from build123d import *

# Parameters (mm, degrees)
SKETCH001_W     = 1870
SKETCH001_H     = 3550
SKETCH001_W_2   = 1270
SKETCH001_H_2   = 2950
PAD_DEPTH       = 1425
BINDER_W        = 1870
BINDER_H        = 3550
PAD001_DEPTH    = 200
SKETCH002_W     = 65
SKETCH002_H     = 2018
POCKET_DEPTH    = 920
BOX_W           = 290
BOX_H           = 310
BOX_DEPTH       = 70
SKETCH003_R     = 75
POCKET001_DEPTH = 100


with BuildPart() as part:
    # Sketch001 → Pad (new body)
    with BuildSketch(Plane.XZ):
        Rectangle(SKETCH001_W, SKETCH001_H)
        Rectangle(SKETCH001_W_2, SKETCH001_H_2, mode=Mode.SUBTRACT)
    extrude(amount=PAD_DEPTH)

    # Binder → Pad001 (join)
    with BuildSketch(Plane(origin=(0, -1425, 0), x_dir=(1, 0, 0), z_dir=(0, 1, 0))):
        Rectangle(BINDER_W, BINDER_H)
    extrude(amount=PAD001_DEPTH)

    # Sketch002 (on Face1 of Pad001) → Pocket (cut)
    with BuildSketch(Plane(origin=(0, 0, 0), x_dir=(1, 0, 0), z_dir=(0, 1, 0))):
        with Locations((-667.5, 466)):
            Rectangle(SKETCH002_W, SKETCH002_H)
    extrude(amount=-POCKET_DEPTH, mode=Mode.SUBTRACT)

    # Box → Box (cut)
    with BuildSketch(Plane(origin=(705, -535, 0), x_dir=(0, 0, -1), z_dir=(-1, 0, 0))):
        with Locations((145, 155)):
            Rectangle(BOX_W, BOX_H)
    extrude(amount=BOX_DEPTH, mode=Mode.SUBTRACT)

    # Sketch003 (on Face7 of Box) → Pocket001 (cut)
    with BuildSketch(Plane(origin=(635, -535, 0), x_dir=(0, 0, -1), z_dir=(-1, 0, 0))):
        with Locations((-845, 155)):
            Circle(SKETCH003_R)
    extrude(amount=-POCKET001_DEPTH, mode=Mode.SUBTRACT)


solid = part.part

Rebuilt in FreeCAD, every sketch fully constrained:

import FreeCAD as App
import Part
import Sketcher
from FreeCAD import Vector


def add_polygon(sketch, points):
    """Adds a closed chain of lines whose ends are joined by coincident constraints."""
    first, n = sketch.GeometryCount, len(points)
    for a, b in zip(points, points[1:] + points[:1]):
        sketch.addGeometry(Part.LineSegment(App.Vector(*a, 0), App.Vector(*b, 0)), False)
    for i in range(n):
        sketch.addConstraint(Sketcher.Constraint("Coincident", first + i, 2, first + (i + 1) % n, 1))

doc = App.newDocument("Part")
body = doc.addObject("PartDesign::Body", "Body")

# Sketch on XZ plane
sketch1 = body.newObject("Sketcher::SketchObject", "Sketch")
sketch1.AttachmentSupport = (doc.getObject("XZ_Plane"), [""])
sketch1.MapMode = "FlatFace"
add_polygon(sketch1, [(-935, 1775), (-935, -1775), (935, -1775), (935, 1775)])  # lines 0-3
add_polygon(sketch1, [(635, -1475), (-635, -1475), (-635, 1475), (635, 1475)])  # lines 4-7
sketch1.addConstraint(Sketcher.Constraint("Vertical", 0))
sketch1.addConstraint(Sketcher.Constraint("Horizontal", 1))
sketch1.addConstraint(Sketcher.Constraint("Vertical", 2))
sketch1.addConstraint(Sketcher.Constraint("Horizontal", 3))
sketch1.addConstraint(Sketcher.Constraint("Horizontal", 4))
sketch1.addConstraint(Sketcher.Constraint("Vertical", 5))
sketch1.addConstraint(Sketcher.Constraint("Horizontal", 6))
sketch1.addConstraint(Sketcher.Constraint("Vertical", 7))
sketch1.addConstraint(Sketcher.Constraint("Symmetric", 0, 2, 2, 2, -1, 1))
sketch1.addConstraint(Sketcher.Constraint("Symmetric", 4, 2, 6, 2, -1, 1))
sketch1.addConstraint(Sketcher.Constraint("DistanceX", 1, 1, 1, 2, 1870.0))
sketch1.addConstraint(Sketcher.Constraint("DistanceX", 4, 2, 4, 1, 1270.0))
sketch1.addConstraint(Sketcher.Constraint("DistanceY", 0, 2, 0, 1, 3550.0))
sketch1.addConstraint(Sketcher.Constraint("DistanceY", 5, 1, 5, 2, 2950.0))
pad1 = body.newObject("PartDesign::Pad", "Pad")
pad1.Profile = sketch1
pad1.Length = 1425

# Sketch on XZ plane
sketch2 = body.newObject("Sketcher::SketchObject", "Sketch001")
sketch2.AttachmentSupport = (doc.getObject("XZ_Plane"), [""])
sketch2.MapMode = "FlatFace"
sketch2.AttachmentOffset = App.Placement(Vector(0, 0, 1425), App.Rotation())
add_polygon(sketch2, [(-935, -1775), (-935, 1775), (935, 1775), (935, -1775)])  # lines 0-3
sketch2.addConstraint(Sketcher.Constraint("Vertical", 0))
sketch2.addConstraint(Sketcher.Constraint("Horizontal", 1))
sketch2.addConstraint(Sketcher.Constraint("Vertical", 2))
sketch2.addConstraint(Sketcher.Constraint("Horizontal", 3))
sketch2.addConstraint(Sketcher.Constraint("Symmetric", 0, 2, 2, 2, -1, 1))
sketch2.addConstraint(Sketcher.Constraint("DistanceX", 1, 1, 1, 2, 1870.0))
sketch2.addConstraint(Sketcher.Constraint("DistanceY", 0, 1, 0, 2, 3550.0))
pad2 = body.newObject("PartDesign::Pad", "Pad001")
pad2.Profile = sketch2
pad2.Length = 200
pad2.Reversed = True

# Sketch on XZ plane
sketch3 = body.newObject("Sketcher::SketchObject", "Sketch002")
sketch3.AttachmentSupport = (doc.getObject("XZ_Plane"), [""])
sketch3.MapMode = "FlatFace"
add_polygon(sketch3, [(-700, -1475), (-700, 543), (-635, 543), (-635, -1475)])  # lines 0-3
sketch3.addConstraint(Sketcher.Constraint("Vertical", 0))
sketch3.addConstraint(Sketcher.Constraint("Horizontal", 1))
sketch3.addConstraint(Sketcher.Constraint("Vertical", 2))
sketch3.addConstraint(Sketcher.Constraint("Horizontal", 3))
sketch3.addConstraint(Sketcher.Constraint("DistanceX", 1, 1, 1, 2, 65.0))
sketch3.addConstraint(Sketcher.Constraint("DistanceY", 0, 1, 0, 2, 2018.0))
sketch3.addConstraint(Sketcher.Constraint("DistanceX", 0, 2, -1, 1, 700.0))
sketch3.addConstraint(Sketcher.Constraint("DistanceY", -1, 1, 0, 2, 543.0))
pocket1 = body.newObject("PartDesign::Pocket", "Pocket")
pocket1.Profile = sketch3
pocket1.Length = 920
pocket1.Reversed = True

# Sketch on YZ plane
sketch4 = body.newObject("Sketcher::SketchObject", "Sketch003")
sketch4.AttachmentSupport = (doc.getObject("YZ_Plane"), [""])
sketch4.MapMode = "FlatFace"
sketch4.AttachmentOffset = App.Placement(Vector(0, 0, 705), App.Rotation())
add_polygon(sketch4, [(-845, 0), (-535, 0), (-535, -290), (-845, -290)])  # lines 0-3
sketch4.addConstraint(Sketcher.Constraint("Horizontal", 0))
sketch4.addConstraint(Sketcher.Constraint("Vertical", 1))
sketch4.addConstraint(Sketcher.Constraint("Horizontal", 2))
sketch4.addConstraint(Sketcher.Constraint("Vertical", 3))
sketch4.addConstraint(Sketcher.Constraint("PointOnObject", 0, 2, -1))
sketch4.addConstraint(Sketcher.Constraint("DistanceX", 0, 1, 0, 2, 310.0))
sketch4.addConstraint(Sketcher.Constraint("DistanceY", 1, 2, 1, 1, 290.0))
sketch4.addConstraint(Sketcher.Constraint("DistanceX", 0, 2, -1, 1, 535.0))
pocket2 = body.newObject("PartDesign::Pocket", "Pocket001")
pocket2.Profile = sketch4
pocket2.Length = 70

# Sketch on YZ plane
sketch5 = body.newObject("Sketcher::SketchObject", "Sketch004")
sketch5.AttachmentSupport = (doc.getObject("YZ_Plane"), [""])
sketch5.MapMode = "FlatFace"
sketch5.AttachmentOffset = App.Placement(Vector(0, 0, 635), App.Rotation())
sketch5.addGeometry(Part.Circle(Vector(-690, 845, 0), Vector(0, 0, 1), 75), False)
sketch5.addConstraint(Sketcher.Constraint("Diameter", 0, 150.0))
sketch5.addConstraint(Sketcher.Constraint("DistanceX", 0, 3, -1, 1, 690.0))
sketch5.addConstraint(Sketcher.Constraint("DistanceY", -1, 1, 0, 3, 845.0))
pocket3 = body.newObject("PartDesign::Pocket", "Pocket002")
pocket3.Profile = sketch5
pocket3.Length = 100
pocket3.Reversed = True

doc.recompute()
